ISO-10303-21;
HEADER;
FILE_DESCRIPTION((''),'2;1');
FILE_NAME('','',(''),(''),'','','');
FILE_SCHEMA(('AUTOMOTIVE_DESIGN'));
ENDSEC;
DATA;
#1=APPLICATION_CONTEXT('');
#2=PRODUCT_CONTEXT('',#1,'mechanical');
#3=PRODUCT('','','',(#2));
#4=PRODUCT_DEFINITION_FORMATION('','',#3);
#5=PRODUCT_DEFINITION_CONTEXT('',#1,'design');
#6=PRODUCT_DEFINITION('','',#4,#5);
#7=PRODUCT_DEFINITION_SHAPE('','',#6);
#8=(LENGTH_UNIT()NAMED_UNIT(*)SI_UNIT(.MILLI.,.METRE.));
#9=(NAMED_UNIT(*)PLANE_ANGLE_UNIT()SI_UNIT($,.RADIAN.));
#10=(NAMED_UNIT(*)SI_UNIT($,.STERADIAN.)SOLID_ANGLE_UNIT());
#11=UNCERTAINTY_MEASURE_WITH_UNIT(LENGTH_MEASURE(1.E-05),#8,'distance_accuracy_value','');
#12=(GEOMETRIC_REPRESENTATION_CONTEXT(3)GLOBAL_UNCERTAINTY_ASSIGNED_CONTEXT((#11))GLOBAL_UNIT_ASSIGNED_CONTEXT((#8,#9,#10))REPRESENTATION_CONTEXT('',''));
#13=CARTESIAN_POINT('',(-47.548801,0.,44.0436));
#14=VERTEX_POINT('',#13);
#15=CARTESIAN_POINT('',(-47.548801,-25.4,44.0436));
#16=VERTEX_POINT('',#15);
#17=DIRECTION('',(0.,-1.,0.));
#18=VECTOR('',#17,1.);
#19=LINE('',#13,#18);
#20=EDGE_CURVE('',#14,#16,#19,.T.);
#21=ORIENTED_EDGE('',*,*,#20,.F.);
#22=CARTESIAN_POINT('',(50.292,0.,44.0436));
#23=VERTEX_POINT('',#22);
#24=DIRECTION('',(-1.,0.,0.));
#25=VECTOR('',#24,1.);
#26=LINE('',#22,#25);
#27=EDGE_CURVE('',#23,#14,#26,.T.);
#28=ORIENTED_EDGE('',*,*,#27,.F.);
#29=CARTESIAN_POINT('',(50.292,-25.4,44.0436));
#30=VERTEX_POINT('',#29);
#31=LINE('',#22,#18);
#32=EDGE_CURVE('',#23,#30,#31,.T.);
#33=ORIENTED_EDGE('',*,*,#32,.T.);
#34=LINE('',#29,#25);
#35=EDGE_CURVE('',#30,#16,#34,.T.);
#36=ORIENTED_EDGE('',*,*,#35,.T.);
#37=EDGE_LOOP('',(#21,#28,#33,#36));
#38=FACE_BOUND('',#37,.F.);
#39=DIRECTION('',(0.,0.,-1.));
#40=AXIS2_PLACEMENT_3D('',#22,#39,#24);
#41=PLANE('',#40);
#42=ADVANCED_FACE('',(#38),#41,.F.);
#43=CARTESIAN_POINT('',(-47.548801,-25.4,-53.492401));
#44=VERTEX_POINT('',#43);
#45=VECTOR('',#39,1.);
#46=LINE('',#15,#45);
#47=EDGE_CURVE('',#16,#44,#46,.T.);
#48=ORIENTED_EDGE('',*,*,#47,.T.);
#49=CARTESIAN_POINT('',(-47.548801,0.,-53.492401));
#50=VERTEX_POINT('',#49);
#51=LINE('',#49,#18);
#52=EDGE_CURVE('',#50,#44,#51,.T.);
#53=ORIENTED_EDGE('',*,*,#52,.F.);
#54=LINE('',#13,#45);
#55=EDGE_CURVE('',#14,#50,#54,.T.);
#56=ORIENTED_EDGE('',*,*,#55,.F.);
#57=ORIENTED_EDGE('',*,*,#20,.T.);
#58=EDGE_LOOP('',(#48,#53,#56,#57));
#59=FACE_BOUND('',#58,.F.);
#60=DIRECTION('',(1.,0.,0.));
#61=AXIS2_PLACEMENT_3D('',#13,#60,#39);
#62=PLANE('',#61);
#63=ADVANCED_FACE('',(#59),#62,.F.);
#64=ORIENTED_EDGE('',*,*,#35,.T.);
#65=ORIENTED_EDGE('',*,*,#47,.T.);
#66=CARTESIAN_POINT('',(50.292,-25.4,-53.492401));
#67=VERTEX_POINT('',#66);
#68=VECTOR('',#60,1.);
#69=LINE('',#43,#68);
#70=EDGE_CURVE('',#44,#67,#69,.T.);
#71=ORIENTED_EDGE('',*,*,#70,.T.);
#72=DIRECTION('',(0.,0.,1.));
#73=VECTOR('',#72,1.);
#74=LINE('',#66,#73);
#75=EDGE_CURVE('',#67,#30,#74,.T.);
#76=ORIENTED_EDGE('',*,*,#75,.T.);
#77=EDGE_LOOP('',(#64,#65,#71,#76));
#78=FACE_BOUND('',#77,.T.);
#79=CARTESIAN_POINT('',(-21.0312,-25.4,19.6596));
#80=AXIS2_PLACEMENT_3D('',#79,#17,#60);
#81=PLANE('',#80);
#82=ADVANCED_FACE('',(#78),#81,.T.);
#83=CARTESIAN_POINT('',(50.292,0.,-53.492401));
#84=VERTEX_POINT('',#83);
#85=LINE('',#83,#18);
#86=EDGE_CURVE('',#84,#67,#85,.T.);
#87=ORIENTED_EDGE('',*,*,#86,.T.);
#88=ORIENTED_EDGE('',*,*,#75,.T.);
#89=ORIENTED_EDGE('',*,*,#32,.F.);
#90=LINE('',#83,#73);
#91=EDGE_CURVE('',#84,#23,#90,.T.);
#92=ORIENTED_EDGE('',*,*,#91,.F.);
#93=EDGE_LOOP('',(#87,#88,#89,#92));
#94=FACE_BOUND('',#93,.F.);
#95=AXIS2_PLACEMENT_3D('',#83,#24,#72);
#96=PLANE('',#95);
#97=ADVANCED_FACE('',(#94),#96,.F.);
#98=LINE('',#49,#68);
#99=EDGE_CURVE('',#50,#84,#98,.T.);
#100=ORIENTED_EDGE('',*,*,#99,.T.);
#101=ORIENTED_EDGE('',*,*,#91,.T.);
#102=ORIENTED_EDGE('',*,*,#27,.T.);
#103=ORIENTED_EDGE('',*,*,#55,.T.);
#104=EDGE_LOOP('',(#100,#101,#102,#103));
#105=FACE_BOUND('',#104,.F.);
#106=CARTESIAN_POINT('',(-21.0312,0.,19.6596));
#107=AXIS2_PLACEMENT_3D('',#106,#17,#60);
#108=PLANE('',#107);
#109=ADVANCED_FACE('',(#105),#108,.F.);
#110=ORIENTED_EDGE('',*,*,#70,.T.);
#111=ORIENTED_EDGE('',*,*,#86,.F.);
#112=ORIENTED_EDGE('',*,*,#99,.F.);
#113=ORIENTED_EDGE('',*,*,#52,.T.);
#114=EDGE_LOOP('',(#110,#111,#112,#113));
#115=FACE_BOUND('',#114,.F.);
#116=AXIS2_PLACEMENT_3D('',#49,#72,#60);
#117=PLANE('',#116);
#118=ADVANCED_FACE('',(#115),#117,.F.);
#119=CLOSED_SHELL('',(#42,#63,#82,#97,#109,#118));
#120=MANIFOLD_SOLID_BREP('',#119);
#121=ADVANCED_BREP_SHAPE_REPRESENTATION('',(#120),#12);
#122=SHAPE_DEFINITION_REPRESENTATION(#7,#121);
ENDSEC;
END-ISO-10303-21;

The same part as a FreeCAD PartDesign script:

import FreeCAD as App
import Part
import Sketcher
Q = App.Units.Quantity


def add_polygon(sketch, points):
    """Adds a closed chain of lines whose ends are joined by coincident constraints."""
    first, n = sketch.GeometryCount, len(points)
    for a, b in zip(points, points[1:] + points[:1]):
        sketch.addGeometry(Part.LineSegment(App.Vector(*a, 0), App.Vector(*b, 0)), False)
    for i in range(n):
        sketch.addConstraint(Sketcher.Constraint("Coincident", first + i, 2, first + (i + 1) % n, 1))

doc = App.newDocument("Part")
body = doc.addObject("PartDesign::Body", "Body")

# Sketch on XZ plane
sketch1 = body.newObject("Sketcher::SketchObject", "Sketch")
sketch1.AttachmentSupport = (doc.getObject("XZ_Plane"), [""])
sketch1.MapMode = "FlatFace"
add_polygon(sketch1, [(-47.548801, 44.0436), (-47.548801, -53.492401), (50.292, -53.492401), (50.292, 44.0436)])  # lines 0-3
sketch1.addConstraint(Sketcher.Constraint("Vertical", 0))
sketch1.addConstraint(Sketcher.Constraint("Horizontal", 1))
sketch1.addConstraint(Sketcher.Constraint("Vertical", 2))
sketch1.addConstraint(Sketcher.Constraint("Horizontal", 3))
sketch1.addConstraint(Sketcher.Constraint("DistanceY", 0, 2, 0, 1, Q("3.8400001 in")))
sketch1.addConstraint(Sketcher.Constraint("DistanceX", 1, 1, 1, 2, Q("3.852 in")))
sketch1.addConstraint(Sketcher.Constraint("DistanceX", -1, 1, 1, 2, Q("1.98 in")))
sketch1.addConstraint(Sketcher.Constraint("DistanceY", 0, 2, -1, 1, Q("2.1060001 in")))
pad1 = body.newObject("PartDesign::Pad", "Pad")
pad1.Profile = sketch1
pad1.Length = Q("1 in")

doc.recompute()
